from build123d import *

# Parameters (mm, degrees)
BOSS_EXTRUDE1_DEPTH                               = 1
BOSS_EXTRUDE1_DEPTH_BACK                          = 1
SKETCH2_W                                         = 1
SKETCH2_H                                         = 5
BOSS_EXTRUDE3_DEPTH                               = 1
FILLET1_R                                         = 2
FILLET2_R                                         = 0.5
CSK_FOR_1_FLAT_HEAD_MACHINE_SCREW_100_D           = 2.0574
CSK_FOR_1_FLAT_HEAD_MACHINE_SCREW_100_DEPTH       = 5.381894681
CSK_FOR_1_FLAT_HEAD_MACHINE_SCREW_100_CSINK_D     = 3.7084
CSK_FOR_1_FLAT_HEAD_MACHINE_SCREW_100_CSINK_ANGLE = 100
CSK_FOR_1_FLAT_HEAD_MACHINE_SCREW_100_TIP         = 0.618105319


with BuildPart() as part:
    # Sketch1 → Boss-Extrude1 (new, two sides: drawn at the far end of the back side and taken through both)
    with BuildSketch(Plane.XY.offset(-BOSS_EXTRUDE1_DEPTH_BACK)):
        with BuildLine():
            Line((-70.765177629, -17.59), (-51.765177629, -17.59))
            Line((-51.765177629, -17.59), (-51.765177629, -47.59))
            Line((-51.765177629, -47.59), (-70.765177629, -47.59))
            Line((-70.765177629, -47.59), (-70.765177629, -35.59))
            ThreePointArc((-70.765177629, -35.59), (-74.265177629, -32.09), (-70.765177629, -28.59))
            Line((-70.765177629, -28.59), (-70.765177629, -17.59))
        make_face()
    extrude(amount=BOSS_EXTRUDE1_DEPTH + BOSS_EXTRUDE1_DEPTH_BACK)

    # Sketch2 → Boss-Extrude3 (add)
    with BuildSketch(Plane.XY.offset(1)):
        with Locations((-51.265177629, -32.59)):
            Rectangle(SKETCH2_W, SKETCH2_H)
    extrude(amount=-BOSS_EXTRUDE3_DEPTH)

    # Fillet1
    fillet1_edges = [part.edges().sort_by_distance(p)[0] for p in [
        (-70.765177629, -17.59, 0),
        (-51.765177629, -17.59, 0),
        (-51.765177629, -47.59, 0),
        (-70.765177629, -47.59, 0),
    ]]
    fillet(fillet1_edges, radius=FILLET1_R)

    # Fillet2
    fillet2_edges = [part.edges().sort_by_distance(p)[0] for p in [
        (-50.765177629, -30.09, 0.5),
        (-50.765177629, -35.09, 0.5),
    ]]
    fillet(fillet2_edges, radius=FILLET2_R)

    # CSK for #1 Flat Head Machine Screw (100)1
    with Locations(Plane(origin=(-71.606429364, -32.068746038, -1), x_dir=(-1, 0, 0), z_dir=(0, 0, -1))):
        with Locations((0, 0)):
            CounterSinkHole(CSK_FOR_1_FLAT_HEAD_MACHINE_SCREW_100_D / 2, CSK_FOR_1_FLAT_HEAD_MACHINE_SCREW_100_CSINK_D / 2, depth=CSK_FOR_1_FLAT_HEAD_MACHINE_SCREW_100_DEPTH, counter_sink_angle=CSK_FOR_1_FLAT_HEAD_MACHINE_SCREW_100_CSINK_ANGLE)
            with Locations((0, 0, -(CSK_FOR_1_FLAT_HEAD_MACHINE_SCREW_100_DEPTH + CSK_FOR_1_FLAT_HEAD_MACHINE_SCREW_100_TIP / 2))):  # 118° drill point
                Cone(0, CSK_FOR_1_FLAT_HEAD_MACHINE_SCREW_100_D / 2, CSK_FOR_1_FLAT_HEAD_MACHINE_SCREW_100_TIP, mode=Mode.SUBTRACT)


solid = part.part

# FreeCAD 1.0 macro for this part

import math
import FreeCAD as App
import Part
import Sketcher

V = App.Vector


def edges_at(feature, points):
    """Names of the edges that pass closest to the given points."""
    edges = feature.Shape.Edges
    near = lambda p: min(range(len(edges)), key=lambda i: edges[i].distToShape(Part.Vertex(*p))[0])
    return sorted({f"Edge{near(p) + 1}" for p in points})


def add_polygon(sketch, points):
    """Adds a closed chain of lines whose ends are joined by coincident constraints."""
    first, n = sketch.GeometryCount, len(points)
    for a, b in zip(points, points[1:] + points[:1]):
        sketch.addGeometry(Part.LineSegment(App.Vector(*a, 0), App.Vector(*b, 0)), False)
    for i in range(n):
        sketch.addConstraint(Sketcher.Constraint("Coincident", first + i, 2, first + (i + 1) % n, 1))

doc = App.newDocument("Part")
body = doc.addObject("PartDesign::Body", "Body")

# Sketch on XY plane
sketch1 = doc.addObject("Sketcher::SketchObject", "Sketch")
body.addObject(sketch1)
sketch1.AttachmentSupport = (doc.XY_Plane, [""])
sketch1.MapMode = "FlatFace"
sketch1.addGeometry(Part.LineSegment(V(-51.8, -17.6, 0), V(-70.8, -17.6, 0)), False)
sketch1.addGeometry(Part.LineSegment(V(-70.8, -17.6, 0), V(-70.8, -28.6, 0)), False)
sketch1.addGeometry(Part.ArcOfCircle(Part.Circle(V(-70.8, -32.1, 0), V(0, 0, 1), 3.5), math.radians(90), math.radians(270)), False)
sketch1.addGeometry(Part.LineSegment(V(-70.8, -35.6, 0), V(-70.8, -47.6, 0)), False)
sketch1.addGeometry(Part.LineSegment(V(-70.8, -47.6, 0), V(-51.8, -47.6, 0)), False)
sketch1.addGeometry(Part.LineSegment(V(-51.8, -47.6, 0), V(-51.8, -17.6, 0)), False)
sketch1.addConstraint(Sketcher.Constraint("Coincident", 0, 2, 1, 1))
sketch1.addConstraint(Sketcher.Constraint("Coincident", 1, 2, 2, 1))
sketch1.addConstraint(Sketcher.Constraint("Coincident", 2, 2, 3, 1))
sketch1.addConstraint(Sketcher.Constraint("Coincident", 3, 2, 4, 1))
sketch1.addConstraint(Sketcher.Constraint("Coincident", 4, 2, 5, 1))
sketch1.addConstraint(Sketcher.Constraint("Coincident", 5, 2, 0, 1))
sketch1.addConstraint(Sketcher.Constraint("Horizontal", 0))
sketch1.addConstraint(Sketcher.Constraint("Vertical", 1))
sketch1.addConstraint(Sketcher.Constraint("Vertical", 3))
sketch1.addConstraint(Sketcher.Constraint("Horizontal", 4))
sketch1.addConstraint(Sketcher.Constraint("Vertical", 5))
sketch1.addConstraint(Sketcher.Constraint("Vertical", 2, 3, 0, 2))
sketch1.addConstraint(Sketcher.Constraint("Vertical", 1, 2, 2, 2))
sketch1.addConstraint(Sketcher.Constraint("Radius", 2, 3.5))
sketch1.addConstraint(Sketcher.Constraint("DistanceX", 0, 2, 0, 1, 19.0))
sketch1.addConstraint(Sketcher.Constraint("DistanceY", 1, 2, 1, 1, 11.0))
sketch1.addConstraint(Sketcher.Constraint("DistanceY", 3, 2, 3, 1, 12.0))
sketch1.addConstraint(Sketcher.Constraint("DistanceY", 2, 3, -1, 1, 32.09))
sketch1.addConstraint(Sketcher.Constraint("DistanceX", 2, 3, -1, 1, 70.765178))
pad1 = doc.addObject("PartDesign::Pad", "Pad")
body.addObject(pad1)
pad1.Profile = sketch1
pad1.Type = "TwoLengths"
pad1.Length = 1
pad1.Length2 = 1

# Sketch on XY plane
sketch2 = doc.addObject("Sketcher::SketchObject", "Sketch001")
body.addObject(sketch2)
sketch2.AttachmentSupport = (doc.XY_Plane, [""])
sketch2.MapMode = "FlatFace"
sketch2.AttachmentOffset = App.Placement(V(0, 0, 1), App.Rotation())
add_polygon(sketch2, [(-51.8, -30.1), (-51.8, -35.1), (-50.8, -35.1), (-50.8, -30.1)])  # lines 0-3
sketch2.addConstraint(Sketcher.Constraint("Vertical", 0))
sketch2.addConstraint(Sketcher.Constraint("Horizontal", 1))
sketch2.addConstraint(Sketcher.Constraint("Vertical", 2))
sketch2.addConstraint(Sketcher.Constraint("Horizontal", 3))
sketch2.addConstraint(Sketcher.Constraint("DistanceX", 1, 1, 1, 2, 1.0))
sketch2.addConstraint(Sketcher.Constraint("DistanceY", 0, 2, 0, 1, 5.0))
sketch2.addConstraint(Sketcher.Constraint("DistanceY", 0, 2, -1, 1, 35.09))
sketch2.addConstraint(Sketcher.Constraint("DistanceX", 0, 2, -1, 1, 51.765178))
pad2 = doc.addObject("PartDesign::Pad", "Pad001")
body.addObject(pad2)
pad2.Profile = sketch2
pad2.Length = 1
pad2.Reversed = True
doc.recompute()

fillet = doc.addObject("PartDesign::Fillet", "Fillet")
body.addObject(fillet)
fillet.Base = (pad2, edges_at(pad2, [
    (-70.765, -17.59, 0),
    (-51.765, -17.59, 0),
    (-51.765, -47.59, 0),
    (-70.765, -47.59, 0),
]))
fillet.Radius = 2
doc.recompute()

fillet2 = doc.addObject("PartDesign::Fillet", "Fillet001")
body.addObject(fillet2)
fillet2.Base = (fillet, edges_at(fillet, [(-50.765, -30.09, 0.5), (-50.765, -35.09, 0.5)]))
fillet2.Radius = 0.5

# Sketch on XY plane
sketch3 = doc.addObject("Sketcher::SketchObject", "Sketch002")
body.addObject(sketch3)
sketch3.AttachmentSupport = (doc.XY_Plane, [""])
sketch3.MapMode = "FlatFace"
sketch3.AttachmentOffset = App.Placement(V(0, 0, -1), App.Rotation())
sketch3.addGeometry(Part.Circle(V(-71.6, -32.1, 0), V(0, 0, 1), 1), False)
sketch3.addConstraint(Sketcher.Constraint("Diameter", 0, 2.0574))
sketch3.addConstraint(Sketcher.Constraint("DistanceX", 0, 3, -1, 1, 71.606429))
sketch3.addConstraint(Sketcher.Constraint("DistanceY", 0, 3, -1, 1, 32.068746))
doc.recompute()
hole = doc.addObject("PartDesign::Hole", "Hole")
body.addObject(hole)
hole.Profile = sketch3
hole.ThreadType = "None"
hole.Diameter = 2.0574
hole.DepthType = "Dimension"
hole.Depth = 5.381895
hole.DrillPoint = "Angled"
hole.DrillPointAngle = 118
hole.HoleCutType = "Countersink"
hole.HoleCutDiameter = 3.7084
hole.HoleCutCountersinkAngle = 100
hole.Reversed = True

doc.recompute()
